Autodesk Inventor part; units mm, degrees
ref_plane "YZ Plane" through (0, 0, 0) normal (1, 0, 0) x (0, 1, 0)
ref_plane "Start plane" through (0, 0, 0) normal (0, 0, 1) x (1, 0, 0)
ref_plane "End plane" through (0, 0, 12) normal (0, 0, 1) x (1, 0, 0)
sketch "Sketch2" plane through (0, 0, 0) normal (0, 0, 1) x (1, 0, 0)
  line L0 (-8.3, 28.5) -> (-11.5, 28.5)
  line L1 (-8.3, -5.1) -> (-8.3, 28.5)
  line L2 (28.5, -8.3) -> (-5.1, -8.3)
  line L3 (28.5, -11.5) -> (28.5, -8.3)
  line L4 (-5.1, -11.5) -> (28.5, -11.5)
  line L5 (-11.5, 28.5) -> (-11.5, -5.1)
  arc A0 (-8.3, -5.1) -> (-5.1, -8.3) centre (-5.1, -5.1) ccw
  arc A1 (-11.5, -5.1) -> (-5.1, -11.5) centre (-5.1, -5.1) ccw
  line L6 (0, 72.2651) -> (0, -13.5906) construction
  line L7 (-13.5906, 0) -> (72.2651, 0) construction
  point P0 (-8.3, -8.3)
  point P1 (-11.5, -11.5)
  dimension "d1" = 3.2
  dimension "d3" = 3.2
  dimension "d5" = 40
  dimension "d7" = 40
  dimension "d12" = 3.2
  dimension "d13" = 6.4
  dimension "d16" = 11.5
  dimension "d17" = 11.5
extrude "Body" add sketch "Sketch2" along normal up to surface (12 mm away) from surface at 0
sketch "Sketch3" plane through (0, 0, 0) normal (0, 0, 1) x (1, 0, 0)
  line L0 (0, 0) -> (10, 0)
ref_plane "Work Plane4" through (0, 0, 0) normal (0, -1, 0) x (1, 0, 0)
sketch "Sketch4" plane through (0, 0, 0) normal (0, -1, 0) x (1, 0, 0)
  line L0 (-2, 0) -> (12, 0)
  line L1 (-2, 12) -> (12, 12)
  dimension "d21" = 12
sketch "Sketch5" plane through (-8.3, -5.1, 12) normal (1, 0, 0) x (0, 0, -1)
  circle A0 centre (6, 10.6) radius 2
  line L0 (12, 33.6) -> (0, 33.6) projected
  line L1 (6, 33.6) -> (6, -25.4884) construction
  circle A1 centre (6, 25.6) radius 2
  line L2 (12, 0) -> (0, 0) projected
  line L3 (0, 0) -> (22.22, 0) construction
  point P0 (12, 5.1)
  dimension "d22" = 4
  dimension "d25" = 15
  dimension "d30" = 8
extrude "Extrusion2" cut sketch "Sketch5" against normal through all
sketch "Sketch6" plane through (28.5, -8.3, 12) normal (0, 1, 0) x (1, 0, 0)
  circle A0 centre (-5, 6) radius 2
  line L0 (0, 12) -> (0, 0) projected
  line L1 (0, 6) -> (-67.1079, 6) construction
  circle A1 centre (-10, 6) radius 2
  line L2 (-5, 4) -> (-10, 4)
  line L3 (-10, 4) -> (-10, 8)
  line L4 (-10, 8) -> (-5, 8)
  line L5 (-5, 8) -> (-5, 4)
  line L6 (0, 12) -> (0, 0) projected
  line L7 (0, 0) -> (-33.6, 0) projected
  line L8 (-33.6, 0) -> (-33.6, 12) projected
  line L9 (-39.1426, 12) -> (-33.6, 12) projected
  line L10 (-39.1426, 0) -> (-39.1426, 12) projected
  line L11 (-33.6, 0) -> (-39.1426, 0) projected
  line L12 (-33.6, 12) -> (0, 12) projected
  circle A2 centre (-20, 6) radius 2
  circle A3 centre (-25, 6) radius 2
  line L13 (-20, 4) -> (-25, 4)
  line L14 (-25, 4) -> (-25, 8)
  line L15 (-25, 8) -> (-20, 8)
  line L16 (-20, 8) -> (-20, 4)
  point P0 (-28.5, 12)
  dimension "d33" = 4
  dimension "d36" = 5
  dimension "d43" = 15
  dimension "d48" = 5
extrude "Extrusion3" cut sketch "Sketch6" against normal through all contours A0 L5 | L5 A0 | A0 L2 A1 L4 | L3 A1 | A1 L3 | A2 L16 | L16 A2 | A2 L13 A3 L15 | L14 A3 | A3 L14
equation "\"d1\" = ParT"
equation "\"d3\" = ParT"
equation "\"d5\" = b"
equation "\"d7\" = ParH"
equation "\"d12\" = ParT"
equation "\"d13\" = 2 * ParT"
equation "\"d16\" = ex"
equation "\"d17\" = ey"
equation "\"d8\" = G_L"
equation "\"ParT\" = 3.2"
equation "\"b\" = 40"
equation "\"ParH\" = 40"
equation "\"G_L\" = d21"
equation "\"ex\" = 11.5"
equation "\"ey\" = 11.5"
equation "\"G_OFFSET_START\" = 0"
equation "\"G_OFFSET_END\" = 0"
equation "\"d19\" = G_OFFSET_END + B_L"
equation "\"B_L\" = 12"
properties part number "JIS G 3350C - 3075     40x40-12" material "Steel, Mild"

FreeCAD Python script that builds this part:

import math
import FreeCAD as App
import Part
import Sketcher

V = App.Vector
Q = App.Units.Quantity

doc = App.newDocument("Part")
body = doc.addObject("PartDesign::Body", "Body")

# Sketch on XY plane
sketch1 = body.newObject("Sketcher::SketchObject", "Sketch")
sketch1.AttachmentSupport = (doc.getObject("XY_Plane"), [""])
sketch1.MapMode = "FlatFace"
sketch1.addGeometry(Part.LineSegment(V(-8.3, -5.1, 0), V(-8.3, 28.5, 0)), False)
sketch1.addGeometry(Part.LineSegment(V(-8.3, 28.5, 0), V(-11.5, 28.5, 0)), False)
sketch1.addGeometry(Part.LineSegment(V(-11.5, 28.5, 0), V(-11.5, -5.1, 0)), False)
sketch1.addGeometry(Part.ArcOfCircle(Part.Circle(V(-5.1, -5.1, 0), V(0, 0, 1), 6.4), math.radians(180), math.radians(270)), False)
sketch1.addGeometry(Part.LineSegment(V(-5.1, -11.5, 0), V(28.5, -11.5, 0)), False)
sketch1.addGeometry(Part.LineSegment(V(28.5, -11.5, 0), V(28.5, -8.3, 0)), False)
sketch1.addGeometry(Part.LineSegment(V(28.5, -8.3, 0), V(-5.1, -8.3, 0)), False)
sketch1.addGeometry(Part.ArcOfCircle(Part.Circle(V(-5.1, -5.1, 0), V(0, 0, 1), 3.2), math.radians(180), math.radians(270)), False)
sketch1.addConstraint(Sketcher.Constraint("Coincident", 0, 2, 1, 1))
sketch1.addConstraint(Sketcher.Constraint("Coincident", 1, 2, 2, 1))
sketch1.addConstraint(Sketcher.Constraint("Tangent", 2, 2, 3, 1))
sketch1.addConstraint(Sketcher.Constraint("Tangent", 3, 2, 4, 1))
sketch1.addConstraint(Sketcher.Constraint("Coincident", 4, 2, 5, 1))
sketch1.addConstraint(Sketcher.Constraint("Coincident", 5, 2, 6, 1))
sketch1.addConstraint(Sketcher.Constraint("Tangent", 6, 2, 7, 2))
sketch1.addConstraint(Sketcher.Constraint("Tangent", 7, 1, 0, 1))
sketch1.addConstraint(Sketcher.Constraint("Vertical", 0))
sketch1.addConstraint(Sketcher.Constraint("Horizontal", 1))
sketch1.addConstraint(Sketcher.Constraint("Vertical", 2))
sketch1.addConstraint(Sketcher.Constraint("Horizontal", 4))
sketch1.addConstraint(Sketcher.Constraint("Vertical", 5))
sketch1.addConstraint(Sketcher.Constraint("Horizontal", 6))
sketch1.addConstraint(Sketcher.Constraint("Coincident", 7, 3, 3, 3))
sketch1.addConstraint(Sketcher.Constraint("Equal", 6, 0))
sketch1.addConstraint(Sketcher.Constraint("Radius", 3, Q("6.4 mm")))
sketch1.addConstraint(Sketcher.Constraint("Radius", 7, Q("3.2 mm")))
sketch1.addConstraint(Sketcher.Constraint("DistanceY", 3, 2, 0, 2, Q("40 mm")))
sketch1.addConstraint(Sketcher.Constraint("DistanceX", 1, 2, -1, 1, Q("11.5 mm")))
sketch1.addConstraint(Sketcher.Constraint("DistanceY", 3, 2, -1, 1, Q("11.5 mm")))
pad1 = body.newObject("PartDesign::Pad", "Pad")
pad1.Profile = sketch1
pad1.Length = 12

# Sketch on YZ plane
sketch2 = body.newObject("Sketcher::SketchObject", "Sketch001")
sketch2.AttachmentSupport = (doc.getObject("YZ_Plane"), [""])
sketch2.MapMode = "FlatFace"
sketch2.AttachmentOffset = App.Placement(V(0, 0, -8.3), App.Rotation())
sketch2.addGeometry(Part.Circle(V(5.5, 6, 0), V(0, 0, 1), 2), False)
sketch2.addGeometry(Part.Circle(V(20.5, 6, 0), V(0, 0, 1), 2), False)
sketch2.addConstraint(Sketcher.Constraint("Equal", 0, 1))
sketch2.addConstraint(Sketcher.Constraint("Horizontal", 0, 3, 1, 3))
sketch2.addConstraint(Sketcher.Constraint("Diameter", 0, Q("4 mm")))
sketch2.addConstraint(Sketcher.Constraint("DistanceX", 0, 3, 1, 3, Q("15 mm")))
sketch2.addConstraint(Sketcher.Constraint("DistanceY", -1, 1, 0, 3, Q("6 mm")))
sketch2.addConstraint(Sketcher.Constraint("DistanceX", -1, 1, 0, 3, Q("5.5 mm")))
pocket1 = body.newObject("PartDesign::Pocket", "Pocket")
pocket1.Profile = sketch2
pocket1.Type = "ThroughAll"

# Sketch on XZ plane
sketch3 = body.newObject("Sketcher::SketchObject", "Sketch002")
sketch3.AttachmentSupport = (doc.getObject("XZ_Plane"), [""])
sketch3.MapMode = "FlatFace"
sketch3.AttachmentOffset = App.Placement(V(0, 0, 8.3), App.Rotation())
sketch3.addGeometry(Part.ArcOfCircle(Part.Circle(V(23.5, 6, 0), V(0, 0, 1), 2), math.radians(-90), math.radians(90)), False)
sketch3.addGeometry(Part.LineSegment(V(23.5, 4, 0), V(18.5, 4, 0)), False)
sketch3.addGeometry(Part.ArcOfCircle(Part.Circle(V(18.5, 6, 0), V(0, 0, 1), 2), math.radians(90), math.radians(270)), False)
sketch3.addGeometry(Part.LineSegment(V(18.5, 8, 0), V(23.5, 8, 0)), False)
sketch3.addGeometry(Part.ArcOfCircle(Part.Circle(V(8.5, 6, 0), V(0, 0, 1), 2), math.radians(-90), math.radians(90)), False)
sketch3.addGeometry(Part.LineSegment(V(8.5, 4, 0), V(3.5, 4, 0)), False)
sketch3.addGeometry(Part.ArcOfCircle(Part.Circle(V(3.5, 6, 0), V(0, 0, 1), 2), math.radians(90), math.radians(270)), False)
sketch3.addGeometry(Part.LineSegment(V(3.5, 8, 0), V(8.5, 8, 0)), False)
sketch3.addConstraint(Sketcher.Constraint("Tangent", 0, 1, 1, 1))
sketch3.addConstraint(Sketcher.Constraint("Tangent", 1, 2, 2, 2))
sketch3.addConstraint(Sketcher.Constraint("Tangent", 2, 1, 3, 1))
sketch3.addConstraint(Sketcher.Constraint("Tangent", 3, 2, 0, 2))
sketch3.addConstraint(Sketcher.Constraint("Tangent", 4, 1, 5, 1))
sketch3.addConstraint(Sketcher.Constraint("Tangent", 5, 2, 6, 2))
sketch3.addConstraint(Sketcher.Constraint("Tangent", 6, 1, 7, 1))
sketch3.addConstraint(Sketcher.Constraint("Tangent", 7, 2, 4, 2))
sketch3.addConstraint(Sketcher.Constraint("Horizontal", 1))
sketch3.addConstraint(Sketcher.Constraint("Horizontal", 3))
sketch3.addConstraint(Sketcher.Constraint("Horizontal", 5))
sketch3.addConstraint(Sketcher.Constraint("Horizontal", 7))
sketch3.addConstraint(Sketcher.Constraint("Equal", 2, 4))
sketch3.addConstraint(Sketcher.Constraint("Horizontal", 2, 3, 4, 3))
sketch3.addConstraint(Sketcher.Constraint("Equal", 3, 5))
sketch3.addConstraint(Sketcher.Constraint("Radius", 0, Q("2 mm")))
sketch3.addConstraint(Sketcher.Constraint("DistanceX", 1, 2, 1, 1, Q("5 mm")))
sketch3.addConstraint(Sketcher.Constraint("DistanceY", -1, 1, 0, 1, Q("4 mm")))
sketch3.addConstraint(Sketcher.Constraint("DistanceX", 4, 3, 2, 3, Q("10 mm")))
sketch3.addConstraint(Sketcher.Constraint("DistanceX", -1, 1, 0, 3, Q("23.5 mm")))
pocket2 = body.newObject("PartDesign::Pocket", "Pocket001")
pocket2.Profile = sketch3
pocket2.Type = "ThroughAll"
pocket2.Reversed = True

doc.recompute()
